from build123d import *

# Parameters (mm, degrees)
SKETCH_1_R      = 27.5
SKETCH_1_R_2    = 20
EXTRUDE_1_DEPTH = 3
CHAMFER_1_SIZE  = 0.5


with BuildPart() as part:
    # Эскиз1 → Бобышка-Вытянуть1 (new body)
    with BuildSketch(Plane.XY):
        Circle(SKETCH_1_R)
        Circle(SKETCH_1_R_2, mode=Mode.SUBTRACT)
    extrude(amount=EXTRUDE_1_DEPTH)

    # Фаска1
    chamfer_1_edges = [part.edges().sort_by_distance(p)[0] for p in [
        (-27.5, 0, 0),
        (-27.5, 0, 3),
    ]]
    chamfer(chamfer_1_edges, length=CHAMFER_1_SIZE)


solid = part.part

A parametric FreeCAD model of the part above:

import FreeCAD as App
import Part
import Sketcher

V = App.Vector


def edges_at(feature, points):
    """Names of the edges that pass closest to the given points."""
    edges = feature.Shape.Edges
    near = lambda p: min(range(len(edges)), key=lambda i: edges[i].distToShape(Part.Vertex(*p))[0])
    return sorted({f"Edge{near(p) + 1}" for p in points})

doc = App.newDocument("Part")
body = doc.addObject("PartDesign::Body", "Body")

# Sketch on XY plane
sketch1 = body.newObject("Sketcher::SketchObject", "Sketch")
sketch1.AttachmentSupport = (doc.getObject("XY_Plane"), [""])
sketch1.MapMode = "FlatFace"
sketch1.addGeometry(Part.Circle(V(0, 0, 0), V(0, 0, 1), 27.5), False)
sketch1.addGeometry(Part.Circle(V(0, 0, 0), V(0, 0, 1), 20), False)
sketch1.addConstraint(Sketcher.Constraint("Coincident", 0, 3, -1, 1))
sketch1.addConstraint(Sketcher.Constraint("Coincident", 1, 3, -1, 1))
sketch1.addConstraint(Sketcher.Constraint("Diameter", 0, 55.0))
sketch1.addConstraint(Sketcher.Constraint("Diameter", 1, 40.0))
pad1 = body.newObject("PartDesign::Pad", "Pad")
pad1.Profile = sketch1
pad1.Length = 3
doc.recompute()

chamfer = body.newObject("PartDesign::Chamfer", "Chamfer")
chamfer.Base = (pad1, edges_at(pad1, [(-27.5, 0, 0), (-27.5, 0, 3)]))
chamfer.Size = 0.5

doc.recompute()
